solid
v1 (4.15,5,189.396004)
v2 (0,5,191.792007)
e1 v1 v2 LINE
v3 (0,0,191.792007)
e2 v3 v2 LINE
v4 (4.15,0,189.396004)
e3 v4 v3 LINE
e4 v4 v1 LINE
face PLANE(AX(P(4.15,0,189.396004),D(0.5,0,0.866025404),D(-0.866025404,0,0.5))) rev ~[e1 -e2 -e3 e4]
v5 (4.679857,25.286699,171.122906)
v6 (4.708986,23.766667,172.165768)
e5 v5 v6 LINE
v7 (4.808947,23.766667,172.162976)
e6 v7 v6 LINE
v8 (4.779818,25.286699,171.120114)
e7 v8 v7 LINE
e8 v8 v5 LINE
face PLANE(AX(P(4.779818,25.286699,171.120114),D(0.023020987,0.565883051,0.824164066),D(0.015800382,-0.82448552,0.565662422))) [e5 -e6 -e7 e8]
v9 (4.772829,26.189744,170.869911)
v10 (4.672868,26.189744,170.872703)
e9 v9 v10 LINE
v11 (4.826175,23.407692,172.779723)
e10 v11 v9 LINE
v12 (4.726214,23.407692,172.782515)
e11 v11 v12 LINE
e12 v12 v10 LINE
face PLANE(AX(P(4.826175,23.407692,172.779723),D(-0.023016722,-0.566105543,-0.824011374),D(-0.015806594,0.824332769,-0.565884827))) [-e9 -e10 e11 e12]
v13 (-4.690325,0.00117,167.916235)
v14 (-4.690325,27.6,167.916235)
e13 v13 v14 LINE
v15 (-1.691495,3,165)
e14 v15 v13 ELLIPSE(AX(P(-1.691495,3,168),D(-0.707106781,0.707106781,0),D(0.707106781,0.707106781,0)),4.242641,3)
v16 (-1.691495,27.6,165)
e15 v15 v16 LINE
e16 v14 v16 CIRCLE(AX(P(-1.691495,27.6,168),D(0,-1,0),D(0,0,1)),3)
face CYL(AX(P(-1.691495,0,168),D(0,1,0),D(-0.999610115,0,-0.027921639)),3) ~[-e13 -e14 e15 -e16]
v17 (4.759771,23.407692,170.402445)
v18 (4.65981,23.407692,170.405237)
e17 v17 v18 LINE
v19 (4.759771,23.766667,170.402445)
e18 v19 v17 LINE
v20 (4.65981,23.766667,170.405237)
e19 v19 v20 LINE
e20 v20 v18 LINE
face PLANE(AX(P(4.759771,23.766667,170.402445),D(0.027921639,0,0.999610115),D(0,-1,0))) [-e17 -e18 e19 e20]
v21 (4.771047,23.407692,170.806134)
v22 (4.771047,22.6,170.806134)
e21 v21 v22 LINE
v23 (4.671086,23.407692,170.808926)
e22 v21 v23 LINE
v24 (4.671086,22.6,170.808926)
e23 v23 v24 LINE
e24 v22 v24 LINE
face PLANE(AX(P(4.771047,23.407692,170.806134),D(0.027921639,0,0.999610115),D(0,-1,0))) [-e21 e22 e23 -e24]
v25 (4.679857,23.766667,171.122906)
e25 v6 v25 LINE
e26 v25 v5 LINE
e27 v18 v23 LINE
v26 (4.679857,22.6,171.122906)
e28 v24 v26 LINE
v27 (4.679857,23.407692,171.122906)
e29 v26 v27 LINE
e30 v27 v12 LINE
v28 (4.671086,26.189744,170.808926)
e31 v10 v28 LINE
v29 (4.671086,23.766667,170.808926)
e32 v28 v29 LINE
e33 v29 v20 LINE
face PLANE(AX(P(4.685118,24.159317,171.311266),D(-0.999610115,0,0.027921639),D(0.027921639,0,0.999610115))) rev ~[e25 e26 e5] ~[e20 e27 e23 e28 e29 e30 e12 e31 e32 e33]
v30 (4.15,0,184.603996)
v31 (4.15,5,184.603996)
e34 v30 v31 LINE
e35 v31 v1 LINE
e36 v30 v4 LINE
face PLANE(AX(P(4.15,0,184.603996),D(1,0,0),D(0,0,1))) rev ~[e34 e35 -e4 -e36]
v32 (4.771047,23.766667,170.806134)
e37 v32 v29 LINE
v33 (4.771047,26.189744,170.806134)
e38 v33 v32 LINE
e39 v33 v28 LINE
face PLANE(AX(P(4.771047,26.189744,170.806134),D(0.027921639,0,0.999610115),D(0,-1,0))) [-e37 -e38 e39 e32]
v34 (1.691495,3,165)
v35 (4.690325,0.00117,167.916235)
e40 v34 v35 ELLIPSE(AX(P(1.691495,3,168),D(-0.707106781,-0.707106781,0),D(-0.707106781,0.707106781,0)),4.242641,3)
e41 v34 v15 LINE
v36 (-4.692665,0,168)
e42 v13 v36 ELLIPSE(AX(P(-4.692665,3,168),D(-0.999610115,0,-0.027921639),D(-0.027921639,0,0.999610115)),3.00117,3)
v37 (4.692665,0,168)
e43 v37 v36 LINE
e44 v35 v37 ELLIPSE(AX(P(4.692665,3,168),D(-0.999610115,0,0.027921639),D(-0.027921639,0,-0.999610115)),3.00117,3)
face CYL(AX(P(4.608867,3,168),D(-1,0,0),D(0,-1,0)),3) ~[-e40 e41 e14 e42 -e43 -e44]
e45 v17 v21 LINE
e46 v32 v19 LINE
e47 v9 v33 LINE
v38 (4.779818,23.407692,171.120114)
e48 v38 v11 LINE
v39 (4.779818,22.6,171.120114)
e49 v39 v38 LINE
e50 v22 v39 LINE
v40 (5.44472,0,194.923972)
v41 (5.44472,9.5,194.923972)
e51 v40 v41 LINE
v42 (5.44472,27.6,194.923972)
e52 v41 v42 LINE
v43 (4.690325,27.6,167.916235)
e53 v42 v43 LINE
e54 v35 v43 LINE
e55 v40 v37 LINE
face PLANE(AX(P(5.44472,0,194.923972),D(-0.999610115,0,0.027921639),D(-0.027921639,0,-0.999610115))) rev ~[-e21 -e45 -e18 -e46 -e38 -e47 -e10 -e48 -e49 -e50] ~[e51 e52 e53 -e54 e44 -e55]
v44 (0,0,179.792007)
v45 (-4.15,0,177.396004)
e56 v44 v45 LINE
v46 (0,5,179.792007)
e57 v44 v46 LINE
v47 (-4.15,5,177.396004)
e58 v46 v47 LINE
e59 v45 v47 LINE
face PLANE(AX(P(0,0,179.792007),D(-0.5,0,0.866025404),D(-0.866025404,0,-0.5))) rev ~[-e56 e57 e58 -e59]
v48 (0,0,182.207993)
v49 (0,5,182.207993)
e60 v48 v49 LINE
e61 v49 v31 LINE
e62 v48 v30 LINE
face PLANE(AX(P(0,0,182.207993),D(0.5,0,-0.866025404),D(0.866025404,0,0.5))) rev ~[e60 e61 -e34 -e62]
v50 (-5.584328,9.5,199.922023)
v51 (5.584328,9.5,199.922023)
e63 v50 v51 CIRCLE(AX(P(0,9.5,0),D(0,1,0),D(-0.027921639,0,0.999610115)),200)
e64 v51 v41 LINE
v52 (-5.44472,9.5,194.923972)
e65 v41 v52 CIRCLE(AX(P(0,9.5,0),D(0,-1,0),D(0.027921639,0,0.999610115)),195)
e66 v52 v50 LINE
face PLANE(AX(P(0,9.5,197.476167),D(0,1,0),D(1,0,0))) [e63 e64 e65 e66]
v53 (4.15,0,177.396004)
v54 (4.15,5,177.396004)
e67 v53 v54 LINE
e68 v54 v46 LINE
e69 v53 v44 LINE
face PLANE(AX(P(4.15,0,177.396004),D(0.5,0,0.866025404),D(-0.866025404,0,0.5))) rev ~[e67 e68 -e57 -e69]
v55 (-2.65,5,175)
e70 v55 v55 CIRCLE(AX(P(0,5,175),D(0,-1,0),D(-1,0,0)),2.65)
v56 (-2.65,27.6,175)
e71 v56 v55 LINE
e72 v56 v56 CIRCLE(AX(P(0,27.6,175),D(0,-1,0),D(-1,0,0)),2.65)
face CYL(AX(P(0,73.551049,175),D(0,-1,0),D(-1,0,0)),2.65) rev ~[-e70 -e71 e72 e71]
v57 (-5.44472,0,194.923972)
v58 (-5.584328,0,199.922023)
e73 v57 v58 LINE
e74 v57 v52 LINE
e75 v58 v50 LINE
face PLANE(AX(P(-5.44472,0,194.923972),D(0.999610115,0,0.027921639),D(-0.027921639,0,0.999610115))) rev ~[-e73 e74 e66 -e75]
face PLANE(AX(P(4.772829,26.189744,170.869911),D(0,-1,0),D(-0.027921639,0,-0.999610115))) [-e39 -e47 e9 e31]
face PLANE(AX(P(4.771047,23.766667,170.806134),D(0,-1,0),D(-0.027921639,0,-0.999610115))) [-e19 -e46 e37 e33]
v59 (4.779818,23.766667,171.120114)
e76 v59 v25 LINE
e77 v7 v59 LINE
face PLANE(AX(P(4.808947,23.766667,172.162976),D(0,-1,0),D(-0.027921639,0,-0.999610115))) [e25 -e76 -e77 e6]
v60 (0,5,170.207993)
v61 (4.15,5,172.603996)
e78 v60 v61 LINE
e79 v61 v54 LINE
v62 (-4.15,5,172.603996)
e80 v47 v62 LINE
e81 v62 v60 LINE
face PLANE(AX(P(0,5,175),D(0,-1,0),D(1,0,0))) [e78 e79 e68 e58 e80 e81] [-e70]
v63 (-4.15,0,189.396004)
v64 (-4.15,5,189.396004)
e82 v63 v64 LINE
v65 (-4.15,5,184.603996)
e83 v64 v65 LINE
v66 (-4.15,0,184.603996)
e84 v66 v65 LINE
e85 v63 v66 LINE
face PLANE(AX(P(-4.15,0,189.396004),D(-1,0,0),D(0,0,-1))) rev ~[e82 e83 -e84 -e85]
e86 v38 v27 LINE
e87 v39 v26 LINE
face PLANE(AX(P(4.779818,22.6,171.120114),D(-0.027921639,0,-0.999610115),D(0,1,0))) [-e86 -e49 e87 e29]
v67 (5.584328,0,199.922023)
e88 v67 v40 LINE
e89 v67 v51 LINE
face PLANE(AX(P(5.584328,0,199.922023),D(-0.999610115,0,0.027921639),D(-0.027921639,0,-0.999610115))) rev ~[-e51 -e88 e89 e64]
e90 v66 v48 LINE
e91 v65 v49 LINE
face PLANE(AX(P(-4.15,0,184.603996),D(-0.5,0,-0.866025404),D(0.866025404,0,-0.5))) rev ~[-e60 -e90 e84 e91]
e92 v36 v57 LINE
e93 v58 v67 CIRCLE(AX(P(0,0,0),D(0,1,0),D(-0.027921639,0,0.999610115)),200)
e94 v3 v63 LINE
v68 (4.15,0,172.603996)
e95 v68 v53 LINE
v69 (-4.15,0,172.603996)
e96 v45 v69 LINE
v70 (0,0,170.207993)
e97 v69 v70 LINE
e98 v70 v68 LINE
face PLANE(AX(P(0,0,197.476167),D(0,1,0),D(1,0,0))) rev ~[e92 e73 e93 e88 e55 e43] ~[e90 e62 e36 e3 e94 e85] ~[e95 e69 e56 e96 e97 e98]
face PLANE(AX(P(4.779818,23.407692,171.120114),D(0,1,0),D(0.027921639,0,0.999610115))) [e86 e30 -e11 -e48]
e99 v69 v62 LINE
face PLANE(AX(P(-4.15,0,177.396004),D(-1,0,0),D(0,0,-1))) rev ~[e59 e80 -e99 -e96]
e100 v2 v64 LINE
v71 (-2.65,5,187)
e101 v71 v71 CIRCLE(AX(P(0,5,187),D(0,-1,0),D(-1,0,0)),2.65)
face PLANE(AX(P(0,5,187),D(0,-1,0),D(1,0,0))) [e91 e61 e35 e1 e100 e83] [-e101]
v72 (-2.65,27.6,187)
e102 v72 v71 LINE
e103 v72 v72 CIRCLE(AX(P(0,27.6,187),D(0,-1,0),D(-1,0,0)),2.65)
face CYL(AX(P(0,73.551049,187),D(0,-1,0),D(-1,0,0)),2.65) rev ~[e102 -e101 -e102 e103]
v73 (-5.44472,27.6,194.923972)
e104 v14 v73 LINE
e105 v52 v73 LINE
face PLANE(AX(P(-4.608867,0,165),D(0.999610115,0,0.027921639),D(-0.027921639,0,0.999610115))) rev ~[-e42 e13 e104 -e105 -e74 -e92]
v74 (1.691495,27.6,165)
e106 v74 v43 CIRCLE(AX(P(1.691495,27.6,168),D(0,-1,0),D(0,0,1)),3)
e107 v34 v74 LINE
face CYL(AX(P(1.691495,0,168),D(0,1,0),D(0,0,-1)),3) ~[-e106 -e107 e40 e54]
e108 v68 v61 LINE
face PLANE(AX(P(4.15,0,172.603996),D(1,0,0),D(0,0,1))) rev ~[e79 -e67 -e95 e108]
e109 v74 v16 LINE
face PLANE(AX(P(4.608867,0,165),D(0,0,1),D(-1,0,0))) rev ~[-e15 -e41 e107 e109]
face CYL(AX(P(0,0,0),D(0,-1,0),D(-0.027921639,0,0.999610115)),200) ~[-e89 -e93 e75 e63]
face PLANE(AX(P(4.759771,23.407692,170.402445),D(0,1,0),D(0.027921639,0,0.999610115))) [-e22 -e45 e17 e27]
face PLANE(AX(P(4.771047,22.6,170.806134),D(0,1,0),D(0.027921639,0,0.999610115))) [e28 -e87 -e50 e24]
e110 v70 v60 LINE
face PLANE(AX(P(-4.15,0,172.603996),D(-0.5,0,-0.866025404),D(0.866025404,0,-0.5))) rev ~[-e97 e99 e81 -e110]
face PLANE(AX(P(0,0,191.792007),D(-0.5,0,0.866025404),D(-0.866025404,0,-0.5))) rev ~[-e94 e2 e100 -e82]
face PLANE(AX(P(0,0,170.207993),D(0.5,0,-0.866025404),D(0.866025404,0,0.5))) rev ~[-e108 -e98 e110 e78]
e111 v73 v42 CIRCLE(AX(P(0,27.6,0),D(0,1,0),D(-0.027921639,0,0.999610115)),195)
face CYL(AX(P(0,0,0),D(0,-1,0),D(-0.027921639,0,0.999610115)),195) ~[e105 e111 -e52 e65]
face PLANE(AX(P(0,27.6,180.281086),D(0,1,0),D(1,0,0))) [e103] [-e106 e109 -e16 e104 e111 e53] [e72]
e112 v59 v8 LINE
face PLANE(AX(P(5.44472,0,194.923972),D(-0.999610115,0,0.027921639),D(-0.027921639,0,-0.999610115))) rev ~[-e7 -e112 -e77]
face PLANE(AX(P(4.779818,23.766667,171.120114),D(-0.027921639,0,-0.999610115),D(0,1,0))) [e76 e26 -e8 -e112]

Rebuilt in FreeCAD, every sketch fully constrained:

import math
import FreeCAD as App
import Part
import Sketcher

V = App.Vector
Q = App.Units.Quantity


def edges_at(feature, points):
    """Names of the edges that pass closest to the given points."""
    edges = feature.Shape.Edges
    near = lambda p: min(range(len(edges)), key=lambda i: edges[i].distToShape(Part.Vertex(*p))[0])
    return sorted({f"Edge{near(p) + 1}" for p in points})


def add_polygon(sketch, points):
    """Adds a closed chain of lines whose ends are joined by coincident constraints."""
    first, n = sketch.GeometryCount, len(points)
    for a, b in zip(points, points[1:] + points[:1]):
        sketch.addGeometry(Part.LineSegment(App.Vector(*a, 0), App.Vector(*b, 0)), False)
    for i in range(n):
        sketch.addConstraint(Sketcher.Constraint("Coincident", first + i, 2, first + (i + 1) % n, 1))

doc = App.newDocument("Part")
body = doc.addObject("PartDesign::Body", "Body")

# Sketch on XZ plane
sketch1 = body.newObject("Sketcher::SketchObject", "Sketch")
sketch1.AttachmentSupport = (doc.getObject("XZ_Plane"), [""])
sketch1.MapMode = "FlatFace"
sketch1.addGeometry([
    Part.LineSegment(V(4.608867, 165, 0), V(-4.608867, 165, 0)),
    Part.LineSegment(V(-4.608867, 165, 0), V(-5.44472, 194.923972, 0)),
    Part.ArcOfCircle(Part.Circle(V(0, 0, 0), V(0, 0, 1), 195), math.radians(88.4), math.radians(91.6)),
    Part.LineSegment(V(5.44472, 194.923972, 0), V(4.608867, 165, 0)),
], False)
sketch1.addConstraint([
    Sketcher.Constraint("Coincident", 0, 2, 1, 1),
    Sketcher.Constraint("Coincident", 1, 2, 2, 2),
    Sketcher.Constraint("Coincident", 2, 1, 3, 1),
    Sketcher.Constraint("Coincident", 3, 2, 0, 1),
    Sketcher.Constraint("Horizontal", 0),
    Sketcher.Constraint("Coincident", 2, 3, -1, 1),
    Sketcher.Constraint("Horizontal", 1, 2, 2, 1),
    Sketcher.Constraint("Equal", 1, 3),
    Sketcher.Constraint("Radius", 2, Q("195 mm")),
    Sketcher.Constraint("DistanceY", -1, 1, 0, 2, Q("165 mm")),
    Sketcher.Constraint("Angle", 1, Q("91.6 deg")),
    Sketcher.Constraint("DistanceX", 0, 2, 0, 1, Q("9.217735 mm")),
])
pad1 = body.newObject("PartDesign::Pad", "Pad")
pad1.Profile = sketch1
pad1.Length = 27.6
pad1.Reversed = True

# Sketch on XZ plane
sketch2 = body.newObject("Sketcher::SketchObject", "Sketch001")
sketch2.AttachmentSupport = (doc.getObject("XZ_Plane"), [""])
sketch2.MapMode = "FlatFace"
sketch2.addGeometry([
    Part.ArcOfCircle(Part.Circle(V(0, 0, 0), V(0, 0, 1), 195), math.radians(88.4), math.radians(91.6)),
    Part.LineSegment(V(-5.44472, 194.923972, 0), V(-5.584328, 199.922023, 0)),
    Part.ArcOfCircle(Part.Circle(V(0, 0, 0), V(0, 0, 1), 200), math.radians(88.4), math.radians(91.6)),
    Part.LineSegment(V(5.584328, 199.922023, 0), V(5.44472, 194.923972, 0)),
], False)
sketch2.addConstraint([
    Sketcher.Constraint("Coincident", 0, 2, 1, 1),
    Sketcher.Constraint("Coincident", 1, 2, 2, 2),
    Sketcher.Constraint("Coincident", 2, 1, 3, 1),
    Sketcher.Constraint("Coincident", 3, 2, 0, 1),
    Sketcher.Constraint("Coincident", 0, 3, -1, 1),
    Sketcher.Constraint("Coincident", 2, 3, -1, 1),
    Sketcher.Constraint("Horizontal", 1, 2, 2, 1),
    Sketcher.Constraint("Horizontal", 0, 2, 3, 2),
    Sketcher.Constraint("Radius", 0, Q("195 mm")),
    Sketcher.Constraint("Radius", 2, Q("200 mm")),
    Sketcher.Constraint("Angle", 1, Q("91.6 deg")),
    Sketcher.Constraint("DistanceX", 0, 2, -1, 1, Q("5.44472 mm")),
])
pad2 = body.newObject("PartDesign::Pad", "Pad001")
pad2.Profile = sketch2
pad2.Length = 9.5
pad2.Reversed = True
doc.recompute()

fillet = body.newObject("PartDesign::Fillet", "Fillet")
fillet.Base = (pad2, edges_at(pad2, [(0, 0, 165), (-4.609, 13.8, 165), (4.609, 13.8, 165)]))
fillet.Radius = 3

# Sketch on XZ plane
sketch3 = body.newObject("Sketcher::SketchObject", "Sketch002")
sketch3.AttachmentSupport = (doc.getObject("XZ_Plane"), [""])
sketch3.MapMode = "FlatFace"
sketch3.AttachmentOffset = App.Placement(V(0, 0, -27.6), App.Rotation())
sketch3.addGeometry([
    Part.Circle(V(0, 187, 0), V(0, 0, 1), 2.65),
    Part.Circle(V(0, 175, 0), V(0, 0, 1), 2.65),
], False)
sketch3.addConstraint([
    Sketcher.Constraint("Equal", 0, 1),
    Sketcher.Constraint("PointOnObject", 0, 3, -2),
    Sketcher.Constraint("PointOnObject", 1, 3, -2),
    Sketcher.Constraint("Diameter", 0, Q("5.3 mm")),
    Sketcher.Constraint("DistanceY", -1, 1, 0, 3, Q("187 mm")),
    Sketcher.Constraint("DistanceY", -1, 1, 1, 3, Q("175 mm")),
])
doc.recompute()
hole = body.newObject("PartDesign::Hole", "Hole")
hole.Profile = sketch3
hole.ThreadType = "None"
hole.Diameter = 5.3
hole.DepthType = "ThroughAll"
hole.Reversed = True

# Sketch on XZ plane
sketch4 = body.newObject("Sketcher::SketchObject", "Sketch003")
sketch4.AttachmentSupport = (doc.getObject("XZ_Plane"), [""])
sketch4.MapMode = "FlatFace"
add_polygon(sketch4, [(0, 179.792007), (-4.15, 177.396004), (-4.15, 172.603996), (0, 170.207993), (4.15, 172.603996), (4.15, 177.396004)])  # lines 0-5
add_polygon(sketch4, [(0, 191.792007), (-4.15, 189.396004), (-4.15, 184.603996), (0, 182.207993), (4.15, 184.603996), (4.15, 189.396004)])  # lines 6-11
sketch4.addConstraint([
    Sketcher.Constraint("Vertical", 1),
    Sketcher.Constraint("Vertical", 4),
    Sketcher.Constraint("Vertical", 7),
    Sketcher.Constraint("Vertical", 10),
    Sketcher.Constraint("Symmetric", 1, 2, 3, 2, -2),
    Sketcher.Constraint("Symmetric", 7, 2, 9, 2, -2),
    Sketcher.Constraint("PointOnObject", 2, 2, -2),
    Sketcher.Constraint("PointOnObject", 5, 2, -2),
    Sketcher.Constraint("PointOnObject", 8, 2, -2),
    Sketcher.Constraint("PointOnObject", 11, 2, -2),
    Sketcher.Constraint("Parallel", 0, 3),
    Sketcher.Constraint("Parallel", 2, 5),
    Sketcher.Constraint("Parallel", 3, 6),
    Sketcher.Constraint("Parallel", 5, 8),
    Sketcher.Constraint("Parallel", 8, 11),
    Sketcher.Constraint("Vertical", 1, 2, 6, 2),
    Sketcher.Constraint("Equal", 4, 7),
    Sketcher.Constraint("Angle", 0, Q("-150 deg")),
    Sketcher.Constraint("DistanceY", 0, 2, 6, 2, Q("12 mm")),
    Sketcher.Constraint("DistanceX", 1, 2, 3, 2, Q("8.3 mm")),
    Sketcher.Constraint("DistanceY", 1, 2, 1, 1, Q("4.792007 mm")),
    Sketcher.Constraint("DistanceY", -1, 1, 0, 2, Q("177.396004 mm")),
])
pocket1 = body.newObject("PartDesign::Pocket", "Pocket")
pocket1.Profile = sketch4
pocket1.Length = 5

# Sketch on an angled plane
sketch5 = body.newObject("Sketcher::SketchObject", "Sketch004")
sketch5.Placement = App.Placement(V(0, 0, 0), App.Rotation(V(-0.027921639, 0, -0.999610115), V(0, 1, 0), V(0.999610115, 0, -0.027921639), "ZXY"))
add_polygon(sketch5, [(-170.872754, 26.189744), (-170.936556, 26.189744), (-172.847113, 23.407692), (-171.186857, 23.407692), (-171.186857, 22.6), (-170.872754, 22.6), (-170.872754, 23.407692), (-170.468908, 23.407692), (-170.468908, 23.766667), (-170.872754, 23.766667)])  # lines 0-9
add_polygon(sketch5, [(-171.186857, 23.766667), (-172.230126, 23.766667), (-171.186857, 25.286699)])  # lines 10-12
sketch5.addConstraint([
    Sketcher.Constraint("Horizontal", 0),
    Sketcher.Constraint("Horizontal", 2),
    Sketcher.Constraint("Vertical", 3),
    Sketcher.Constraint("Horizontal", 4),
    Sketcher.Constraint("Vertical", 5),
    Sketcher.Constraint("Horizontal", 6),
    Sketcher.Constraint("Vertical", 7),
    Sketcher.Constraint("Horizontal", 8),
    Sketcher.Constraint("Vertical", 9),
    Sketcher.Constraint("Horizontal", 10),
    Sketcher.Constraint("Vertical", 12),
    Sketcher.Constraint("Horizontal", 2, 2, 5, 2),
    Sketcher.Constraint("Horizontal", 8, 2, 10, 2),
    Sketcher.Constraint("Vertical", 5, 2, 8, 2),
    Sketcher.Constraint("Vertical", 3, 2, 11, 2),
    Sketcher.Constraint("DistanceY", -1, 1, 3, 2, Q("22.6 mm")),
    Sketcher.Constraint("DistanceX", 10, 2, 10, 1, Q("1.043269 mm")),
    Sketcher.Constraint("DistanceY", -1, 1, 11, 2, Q("25.286699 mm")),
    Sketcher.Constraint("DistanceX", 2, 2, 0, 2, Q("0.2503 mm")),
    Sketcher.Constraint("DistanceX", 0, 2, 0, 1, Q("0.063802 mm")),
    Sketcher.Constraint("DistanceX", 2, 1, 2, 2, Q("1.660256 mm")),
    Sketcher.Constraint("DistanceX", 6, 1, 6, 2, Q("0.403846 mm")),
    Sketcher.Constraint("DistanceY", 3, 2, 3, 1, Q("0.807692 mm")),
    Sketcher.Constraint("DistanceY", 7, 1, 7, 2, Q("0.358974 mm")),
    Sketcher.Constraint("DistanceY", 9, 1, 9, 2, Q("2.423077 mm")),
    Sketcher.Constraint("DistanceX", 6, 2, -1, 1, Q("170.468908 mm")),
])
pocket2 = body.newObject("PartDesign::Pocket", "Pocket001")
pocket2.Profile = sketch5
pocket2.Length = 0.1

doc.recompute()
